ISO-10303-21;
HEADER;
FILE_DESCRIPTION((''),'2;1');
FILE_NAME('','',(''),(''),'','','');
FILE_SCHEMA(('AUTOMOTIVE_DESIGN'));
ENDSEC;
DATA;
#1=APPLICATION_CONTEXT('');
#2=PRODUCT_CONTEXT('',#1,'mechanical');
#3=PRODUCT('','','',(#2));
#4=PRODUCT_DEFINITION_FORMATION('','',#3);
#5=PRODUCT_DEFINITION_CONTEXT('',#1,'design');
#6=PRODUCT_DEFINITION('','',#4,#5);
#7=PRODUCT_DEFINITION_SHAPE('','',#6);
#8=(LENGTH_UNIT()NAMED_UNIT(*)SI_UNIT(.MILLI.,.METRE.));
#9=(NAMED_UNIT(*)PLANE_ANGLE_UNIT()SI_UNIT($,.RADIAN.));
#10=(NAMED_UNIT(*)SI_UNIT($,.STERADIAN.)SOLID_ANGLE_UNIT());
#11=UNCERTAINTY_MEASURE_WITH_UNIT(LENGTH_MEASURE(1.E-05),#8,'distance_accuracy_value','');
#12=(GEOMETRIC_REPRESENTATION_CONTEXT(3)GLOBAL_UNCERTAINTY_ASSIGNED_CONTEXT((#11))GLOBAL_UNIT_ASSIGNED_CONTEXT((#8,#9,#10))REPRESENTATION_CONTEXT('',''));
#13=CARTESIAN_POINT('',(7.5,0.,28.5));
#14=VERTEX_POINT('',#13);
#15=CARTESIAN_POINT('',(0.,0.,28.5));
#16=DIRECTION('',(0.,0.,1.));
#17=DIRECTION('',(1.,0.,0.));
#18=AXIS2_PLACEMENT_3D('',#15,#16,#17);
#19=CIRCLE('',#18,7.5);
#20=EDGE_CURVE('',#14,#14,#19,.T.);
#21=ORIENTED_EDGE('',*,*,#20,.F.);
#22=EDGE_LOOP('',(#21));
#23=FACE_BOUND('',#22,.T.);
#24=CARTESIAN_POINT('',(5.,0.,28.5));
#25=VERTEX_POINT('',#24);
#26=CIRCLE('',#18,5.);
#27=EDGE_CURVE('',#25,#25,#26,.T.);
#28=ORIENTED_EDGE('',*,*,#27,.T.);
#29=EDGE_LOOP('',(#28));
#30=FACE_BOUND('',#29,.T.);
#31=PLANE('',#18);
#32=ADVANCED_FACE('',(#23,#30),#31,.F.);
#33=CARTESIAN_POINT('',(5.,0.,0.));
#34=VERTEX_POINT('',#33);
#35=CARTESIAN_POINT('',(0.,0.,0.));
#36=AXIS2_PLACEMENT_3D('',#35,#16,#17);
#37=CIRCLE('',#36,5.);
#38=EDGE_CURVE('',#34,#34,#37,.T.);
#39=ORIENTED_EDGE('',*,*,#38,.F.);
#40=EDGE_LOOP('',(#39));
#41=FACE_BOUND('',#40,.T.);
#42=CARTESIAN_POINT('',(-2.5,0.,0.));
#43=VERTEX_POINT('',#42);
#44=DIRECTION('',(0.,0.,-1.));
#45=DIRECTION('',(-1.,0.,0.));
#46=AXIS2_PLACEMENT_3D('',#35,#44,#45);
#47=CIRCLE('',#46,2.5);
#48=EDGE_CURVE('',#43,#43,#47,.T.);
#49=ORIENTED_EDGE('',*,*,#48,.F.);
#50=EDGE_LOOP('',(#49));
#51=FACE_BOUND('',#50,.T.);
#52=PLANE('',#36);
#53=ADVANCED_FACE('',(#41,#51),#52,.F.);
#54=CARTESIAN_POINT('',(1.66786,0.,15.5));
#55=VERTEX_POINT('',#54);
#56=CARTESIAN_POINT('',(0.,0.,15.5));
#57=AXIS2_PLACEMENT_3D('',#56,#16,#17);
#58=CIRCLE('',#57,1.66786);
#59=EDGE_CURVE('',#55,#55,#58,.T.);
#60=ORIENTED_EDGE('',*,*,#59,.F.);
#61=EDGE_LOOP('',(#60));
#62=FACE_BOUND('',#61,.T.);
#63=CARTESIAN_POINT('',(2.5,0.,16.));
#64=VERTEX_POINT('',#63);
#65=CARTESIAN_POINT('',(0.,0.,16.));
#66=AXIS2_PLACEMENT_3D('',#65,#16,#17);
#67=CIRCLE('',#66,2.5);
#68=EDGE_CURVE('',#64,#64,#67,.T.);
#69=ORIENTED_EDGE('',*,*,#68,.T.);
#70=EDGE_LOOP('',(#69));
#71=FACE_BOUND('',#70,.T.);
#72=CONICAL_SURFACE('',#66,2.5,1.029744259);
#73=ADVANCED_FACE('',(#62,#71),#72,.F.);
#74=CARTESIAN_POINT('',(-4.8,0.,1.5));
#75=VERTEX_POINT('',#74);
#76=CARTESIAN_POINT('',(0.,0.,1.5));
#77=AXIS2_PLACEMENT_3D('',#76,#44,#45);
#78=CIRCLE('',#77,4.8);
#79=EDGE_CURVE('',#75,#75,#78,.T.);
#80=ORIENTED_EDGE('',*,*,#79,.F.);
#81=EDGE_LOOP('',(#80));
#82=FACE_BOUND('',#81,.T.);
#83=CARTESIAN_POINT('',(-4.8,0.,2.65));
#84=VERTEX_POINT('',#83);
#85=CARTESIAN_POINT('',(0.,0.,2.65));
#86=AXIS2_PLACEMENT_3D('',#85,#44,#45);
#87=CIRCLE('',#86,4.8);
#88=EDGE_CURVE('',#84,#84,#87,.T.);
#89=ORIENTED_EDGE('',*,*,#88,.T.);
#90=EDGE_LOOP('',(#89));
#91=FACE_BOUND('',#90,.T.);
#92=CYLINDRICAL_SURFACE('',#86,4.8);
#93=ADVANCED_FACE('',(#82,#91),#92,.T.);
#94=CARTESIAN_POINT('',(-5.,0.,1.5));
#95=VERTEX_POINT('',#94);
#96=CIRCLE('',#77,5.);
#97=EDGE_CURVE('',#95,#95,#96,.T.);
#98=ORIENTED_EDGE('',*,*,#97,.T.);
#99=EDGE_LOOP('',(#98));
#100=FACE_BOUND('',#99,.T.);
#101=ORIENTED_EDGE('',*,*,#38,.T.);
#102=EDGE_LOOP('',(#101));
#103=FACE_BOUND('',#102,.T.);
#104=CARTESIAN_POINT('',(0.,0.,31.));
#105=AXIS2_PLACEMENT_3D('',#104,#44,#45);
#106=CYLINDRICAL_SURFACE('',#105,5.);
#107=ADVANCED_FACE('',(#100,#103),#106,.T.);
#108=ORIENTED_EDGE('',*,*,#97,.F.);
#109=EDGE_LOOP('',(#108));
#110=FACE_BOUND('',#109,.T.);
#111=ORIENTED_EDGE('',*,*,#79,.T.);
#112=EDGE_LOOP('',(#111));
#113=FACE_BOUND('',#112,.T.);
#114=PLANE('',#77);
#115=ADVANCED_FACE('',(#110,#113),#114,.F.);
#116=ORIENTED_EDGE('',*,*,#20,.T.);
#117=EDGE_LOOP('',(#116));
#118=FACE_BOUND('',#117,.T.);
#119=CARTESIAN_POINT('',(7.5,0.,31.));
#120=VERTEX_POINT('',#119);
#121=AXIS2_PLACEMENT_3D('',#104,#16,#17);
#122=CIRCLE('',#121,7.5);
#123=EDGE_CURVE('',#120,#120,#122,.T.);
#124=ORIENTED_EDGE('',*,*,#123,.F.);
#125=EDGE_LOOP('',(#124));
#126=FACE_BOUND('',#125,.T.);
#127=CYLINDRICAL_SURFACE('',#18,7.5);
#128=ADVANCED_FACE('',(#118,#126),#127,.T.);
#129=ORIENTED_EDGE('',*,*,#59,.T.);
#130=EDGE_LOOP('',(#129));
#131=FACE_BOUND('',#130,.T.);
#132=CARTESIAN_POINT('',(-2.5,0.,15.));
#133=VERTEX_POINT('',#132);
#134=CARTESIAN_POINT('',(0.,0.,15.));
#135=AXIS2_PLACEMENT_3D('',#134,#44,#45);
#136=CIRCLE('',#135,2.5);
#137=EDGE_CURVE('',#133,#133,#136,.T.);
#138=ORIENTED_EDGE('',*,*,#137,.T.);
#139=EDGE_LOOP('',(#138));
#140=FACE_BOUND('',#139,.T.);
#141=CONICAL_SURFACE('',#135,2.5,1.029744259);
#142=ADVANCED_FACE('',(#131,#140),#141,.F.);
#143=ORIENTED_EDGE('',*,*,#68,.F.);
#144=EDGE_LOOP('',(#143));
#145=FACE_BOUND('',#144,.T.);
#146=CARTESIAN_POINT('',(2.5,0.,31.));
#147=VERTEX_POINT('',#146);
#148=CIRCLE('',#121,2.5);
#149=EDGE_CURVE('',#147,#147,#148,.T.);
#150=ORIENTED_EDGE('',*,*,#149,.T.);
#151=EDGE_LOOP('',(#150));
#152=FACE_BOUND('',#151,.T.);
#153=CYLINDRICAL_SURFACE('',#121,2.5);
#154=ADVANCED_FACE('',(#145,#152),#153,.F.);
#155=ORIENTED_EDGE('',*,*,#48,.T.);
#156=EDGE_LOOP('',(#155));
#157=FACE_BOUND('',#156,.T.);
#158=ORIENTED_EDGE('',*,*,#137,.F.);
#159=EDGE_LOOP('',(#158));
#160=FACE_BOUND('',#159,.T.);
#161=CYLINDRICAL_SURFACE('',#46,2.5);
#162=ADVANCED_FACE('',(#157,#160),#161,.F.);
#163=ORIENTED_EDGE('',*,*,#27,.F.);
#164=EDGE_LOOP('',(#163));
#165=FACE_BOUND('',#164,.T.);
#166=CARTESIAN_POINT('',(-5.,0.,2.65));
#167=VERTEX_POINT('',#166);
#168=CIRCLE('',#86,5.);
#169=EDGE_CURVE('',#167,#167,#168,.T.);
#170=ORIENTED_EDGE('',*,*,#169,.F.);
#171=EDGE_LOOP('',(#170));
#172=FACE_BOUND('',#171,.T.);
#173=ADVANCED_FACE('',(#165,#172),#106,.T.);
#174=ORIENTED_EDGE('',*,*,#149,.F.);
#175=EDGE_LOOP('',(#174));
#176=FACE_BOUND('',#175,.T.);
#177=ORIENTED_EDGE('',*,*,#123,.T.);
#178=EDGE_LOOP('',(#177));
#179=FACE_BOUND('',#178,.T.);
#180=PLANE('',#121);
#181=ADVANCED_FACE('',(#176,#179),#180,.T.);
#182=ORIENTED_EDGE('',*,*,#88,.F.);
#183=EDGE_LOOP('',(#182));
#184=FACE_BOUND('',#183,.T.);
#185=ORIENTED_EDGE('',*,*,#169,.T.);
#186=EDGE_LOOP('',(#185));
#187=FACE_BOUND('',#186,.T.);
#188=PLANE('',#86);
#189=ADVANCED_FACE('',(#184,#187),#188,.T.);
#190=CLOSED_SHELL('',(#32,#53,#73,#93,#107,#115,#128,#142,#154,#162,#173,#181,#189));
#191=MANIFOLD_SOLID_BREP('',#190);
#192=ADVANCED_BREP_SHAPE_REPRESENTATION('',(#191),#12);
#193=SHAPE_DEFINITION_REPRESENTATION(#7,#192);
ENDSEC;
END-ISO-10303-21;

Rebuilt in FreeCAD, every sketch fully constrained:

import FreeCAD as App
import Part
import Sketcher

V = App.Vector
Q = App.Units.Quantity

doc = App.newDocument("Part")
body = doc.addObject("PartDesign::Body", "Body")

# Sketch on XY plane
sketch1 = body.newObject("Sketcher::SketchObject", "Sketch")
sketch1.AttachmentSupport = (doc.getObject("XY_Plane"), [""])
sketch1.MapMode = "FlatFace"
sketch1.addGeometry(Part.Circle(V(0, 0, 0), V(0, 0, 1), 5), False)
sketch1.addConstraint(Sketcher.Constraint("Coincident", 0, 3, -1, 1))
sketch1.addConstraint(Sketcher.Constraint("Diameter", 0, Q("10 mm")))
pad1 = body.newObject("PartDesign::Pad", "Pad")
pad1.Profile = sketch1
pad1.Length = 31

# Sketch on XY plane
sketch2 = body.newObject("Sketcher::SketchObject", "Sketch001")
sketch2.AttachmentSupport = (doc.getObject("XY_Plane"), [""])
sketch2.MapMode = "FlatFace"
sketch2.addGeometry(Part.Circle(V(0, 0, 0), V(0, 0, 1), 2.5), False)
sketch2.addConstraint(Sketcher.Constraint("Coincident", 0, 3, -1, 1))
sketch2.addConstraint(Sketcher.Constraint("Diameter", 0, Q("5 mm")))
doc.recompute()
hole = body.newObject("PartDesign::Hole", "Hole")
hole.Profile = sketch2
hole.ThreadType = "None"
hole.Diameter = 5
hole.DepthType = "Dimension"
hole.Depth = 15
hole.DrillPoint = "Angled"
hole.DrillPointAngle = 118
hole.Reversed = True

# Sketch on XY plane
sketch3 = body.newObject("Sketcher::SketchObject", "Sketch002")
sketch3.AttachmentSupport = (doc.getObject("XY_Plane"), [""])
sketch3.MapMode = "FlatFace"
sketch3.AttachmentOffset = App.Placement(V(0, 0, 31), App.Rotation())
sketch3.addGeometry(Part.Circle(V(0, 0, 0), V(0, 0, 1), 2.5), False)
sketch3.addConstraint(Sketcher.Constraint("Coincident", 0, 3, -1, 1))
sketch3.addConstraint(Sketcher.Constraint("Diameter", 0, Q("5 mm")))
doc.recompute()
hole2 = body.newObject("PartDesign::Hole", "Hole001")
hole2.Profile = sketch3
hole2.ThreadType = "None"
hole2.Diameter = 5
hole2.DepthType = "Dimension"
hole2.Depth = 15
hole2.DrillPoint = "Angled"
hole2.DrillPointAngle = 118

# Sketch on XY plane
sketch4 = body.newObject("Sketcher::SketchObject", "Sketch003")
sketch4.AttachmentSupport = (doc.getObject("XY_Plane"), [""])
sketch4.MapMode = "FlatFace"
sketch4.AttachmentOffset = App.Placement(V(0, 0, 28.5), App.Rotation())
sketch4.addGeometry(Part.Circle(V(0, 0, 0), V(0, 0, 1), 8), False)
sketch4.addGeometry(Part.Circle(V(0, 0, 0), V(0, 0, 1), 5), False)
sketch4.addConstraint(Sketcher.Constraint("Coincident", 0, 3, -1, 1))
sketch4.addConstraint(Sketcher.Constraint("Coincident", 1, 3, -1, 1))
sketch4.addConstraint(Sketcher.Constraint("Diameter", 0, Q("15 mm")))
sketch4.addConstraint(Sketcher.Constraint("Diameter", 1, Q("10 mm")))
pad2 = body.newObject("PartDesign::Pad", "Pad001")
pad2.Profile = sketch4
pad2.Length = 2.5

# Sketch on XY plane
sketch5 = body.newObject("Sketcher::SketchObject", "Sketch004")
sketch5.AttachmentSupport = (doc.getObject("XY_Plane"), [""])
sketch5.MapMode = "FlatFace"
sketch5.AttachmentOffset = App.Placement(V(0, 0, 1.5), App.Rotation())
sketch5.addGeometry(Part.Circle(V(0, 0, 0), V(0, 0, 1), 5.4), False)
sketch5.addGeometry(Part.Circle(V(0, 0, 0), V(0, 0, 1), 4.8), False)
sketch5.addConstraint(Sketcher.Constraint("Coincident", 0, 3, -1, 1))
sketch5.addConstraint(Sketcher.Constraint("Coincident", 1, 3, -1, 1))
sketch5.addConstraint(Sketcher.Constraint("Diameter", 1, Q("9.6 mm")))
sketch5.addConstraint(Sketcher.Constraint("Diameter", 0, Q("10.809288 mm")))
pocket1 = body.newObject("PartDesign::Pocket", "Pocket")
pocket1.Profile = sketch5
pocket1.Length = 1.15
pocket1.Reversed = True

doc.recompute()
